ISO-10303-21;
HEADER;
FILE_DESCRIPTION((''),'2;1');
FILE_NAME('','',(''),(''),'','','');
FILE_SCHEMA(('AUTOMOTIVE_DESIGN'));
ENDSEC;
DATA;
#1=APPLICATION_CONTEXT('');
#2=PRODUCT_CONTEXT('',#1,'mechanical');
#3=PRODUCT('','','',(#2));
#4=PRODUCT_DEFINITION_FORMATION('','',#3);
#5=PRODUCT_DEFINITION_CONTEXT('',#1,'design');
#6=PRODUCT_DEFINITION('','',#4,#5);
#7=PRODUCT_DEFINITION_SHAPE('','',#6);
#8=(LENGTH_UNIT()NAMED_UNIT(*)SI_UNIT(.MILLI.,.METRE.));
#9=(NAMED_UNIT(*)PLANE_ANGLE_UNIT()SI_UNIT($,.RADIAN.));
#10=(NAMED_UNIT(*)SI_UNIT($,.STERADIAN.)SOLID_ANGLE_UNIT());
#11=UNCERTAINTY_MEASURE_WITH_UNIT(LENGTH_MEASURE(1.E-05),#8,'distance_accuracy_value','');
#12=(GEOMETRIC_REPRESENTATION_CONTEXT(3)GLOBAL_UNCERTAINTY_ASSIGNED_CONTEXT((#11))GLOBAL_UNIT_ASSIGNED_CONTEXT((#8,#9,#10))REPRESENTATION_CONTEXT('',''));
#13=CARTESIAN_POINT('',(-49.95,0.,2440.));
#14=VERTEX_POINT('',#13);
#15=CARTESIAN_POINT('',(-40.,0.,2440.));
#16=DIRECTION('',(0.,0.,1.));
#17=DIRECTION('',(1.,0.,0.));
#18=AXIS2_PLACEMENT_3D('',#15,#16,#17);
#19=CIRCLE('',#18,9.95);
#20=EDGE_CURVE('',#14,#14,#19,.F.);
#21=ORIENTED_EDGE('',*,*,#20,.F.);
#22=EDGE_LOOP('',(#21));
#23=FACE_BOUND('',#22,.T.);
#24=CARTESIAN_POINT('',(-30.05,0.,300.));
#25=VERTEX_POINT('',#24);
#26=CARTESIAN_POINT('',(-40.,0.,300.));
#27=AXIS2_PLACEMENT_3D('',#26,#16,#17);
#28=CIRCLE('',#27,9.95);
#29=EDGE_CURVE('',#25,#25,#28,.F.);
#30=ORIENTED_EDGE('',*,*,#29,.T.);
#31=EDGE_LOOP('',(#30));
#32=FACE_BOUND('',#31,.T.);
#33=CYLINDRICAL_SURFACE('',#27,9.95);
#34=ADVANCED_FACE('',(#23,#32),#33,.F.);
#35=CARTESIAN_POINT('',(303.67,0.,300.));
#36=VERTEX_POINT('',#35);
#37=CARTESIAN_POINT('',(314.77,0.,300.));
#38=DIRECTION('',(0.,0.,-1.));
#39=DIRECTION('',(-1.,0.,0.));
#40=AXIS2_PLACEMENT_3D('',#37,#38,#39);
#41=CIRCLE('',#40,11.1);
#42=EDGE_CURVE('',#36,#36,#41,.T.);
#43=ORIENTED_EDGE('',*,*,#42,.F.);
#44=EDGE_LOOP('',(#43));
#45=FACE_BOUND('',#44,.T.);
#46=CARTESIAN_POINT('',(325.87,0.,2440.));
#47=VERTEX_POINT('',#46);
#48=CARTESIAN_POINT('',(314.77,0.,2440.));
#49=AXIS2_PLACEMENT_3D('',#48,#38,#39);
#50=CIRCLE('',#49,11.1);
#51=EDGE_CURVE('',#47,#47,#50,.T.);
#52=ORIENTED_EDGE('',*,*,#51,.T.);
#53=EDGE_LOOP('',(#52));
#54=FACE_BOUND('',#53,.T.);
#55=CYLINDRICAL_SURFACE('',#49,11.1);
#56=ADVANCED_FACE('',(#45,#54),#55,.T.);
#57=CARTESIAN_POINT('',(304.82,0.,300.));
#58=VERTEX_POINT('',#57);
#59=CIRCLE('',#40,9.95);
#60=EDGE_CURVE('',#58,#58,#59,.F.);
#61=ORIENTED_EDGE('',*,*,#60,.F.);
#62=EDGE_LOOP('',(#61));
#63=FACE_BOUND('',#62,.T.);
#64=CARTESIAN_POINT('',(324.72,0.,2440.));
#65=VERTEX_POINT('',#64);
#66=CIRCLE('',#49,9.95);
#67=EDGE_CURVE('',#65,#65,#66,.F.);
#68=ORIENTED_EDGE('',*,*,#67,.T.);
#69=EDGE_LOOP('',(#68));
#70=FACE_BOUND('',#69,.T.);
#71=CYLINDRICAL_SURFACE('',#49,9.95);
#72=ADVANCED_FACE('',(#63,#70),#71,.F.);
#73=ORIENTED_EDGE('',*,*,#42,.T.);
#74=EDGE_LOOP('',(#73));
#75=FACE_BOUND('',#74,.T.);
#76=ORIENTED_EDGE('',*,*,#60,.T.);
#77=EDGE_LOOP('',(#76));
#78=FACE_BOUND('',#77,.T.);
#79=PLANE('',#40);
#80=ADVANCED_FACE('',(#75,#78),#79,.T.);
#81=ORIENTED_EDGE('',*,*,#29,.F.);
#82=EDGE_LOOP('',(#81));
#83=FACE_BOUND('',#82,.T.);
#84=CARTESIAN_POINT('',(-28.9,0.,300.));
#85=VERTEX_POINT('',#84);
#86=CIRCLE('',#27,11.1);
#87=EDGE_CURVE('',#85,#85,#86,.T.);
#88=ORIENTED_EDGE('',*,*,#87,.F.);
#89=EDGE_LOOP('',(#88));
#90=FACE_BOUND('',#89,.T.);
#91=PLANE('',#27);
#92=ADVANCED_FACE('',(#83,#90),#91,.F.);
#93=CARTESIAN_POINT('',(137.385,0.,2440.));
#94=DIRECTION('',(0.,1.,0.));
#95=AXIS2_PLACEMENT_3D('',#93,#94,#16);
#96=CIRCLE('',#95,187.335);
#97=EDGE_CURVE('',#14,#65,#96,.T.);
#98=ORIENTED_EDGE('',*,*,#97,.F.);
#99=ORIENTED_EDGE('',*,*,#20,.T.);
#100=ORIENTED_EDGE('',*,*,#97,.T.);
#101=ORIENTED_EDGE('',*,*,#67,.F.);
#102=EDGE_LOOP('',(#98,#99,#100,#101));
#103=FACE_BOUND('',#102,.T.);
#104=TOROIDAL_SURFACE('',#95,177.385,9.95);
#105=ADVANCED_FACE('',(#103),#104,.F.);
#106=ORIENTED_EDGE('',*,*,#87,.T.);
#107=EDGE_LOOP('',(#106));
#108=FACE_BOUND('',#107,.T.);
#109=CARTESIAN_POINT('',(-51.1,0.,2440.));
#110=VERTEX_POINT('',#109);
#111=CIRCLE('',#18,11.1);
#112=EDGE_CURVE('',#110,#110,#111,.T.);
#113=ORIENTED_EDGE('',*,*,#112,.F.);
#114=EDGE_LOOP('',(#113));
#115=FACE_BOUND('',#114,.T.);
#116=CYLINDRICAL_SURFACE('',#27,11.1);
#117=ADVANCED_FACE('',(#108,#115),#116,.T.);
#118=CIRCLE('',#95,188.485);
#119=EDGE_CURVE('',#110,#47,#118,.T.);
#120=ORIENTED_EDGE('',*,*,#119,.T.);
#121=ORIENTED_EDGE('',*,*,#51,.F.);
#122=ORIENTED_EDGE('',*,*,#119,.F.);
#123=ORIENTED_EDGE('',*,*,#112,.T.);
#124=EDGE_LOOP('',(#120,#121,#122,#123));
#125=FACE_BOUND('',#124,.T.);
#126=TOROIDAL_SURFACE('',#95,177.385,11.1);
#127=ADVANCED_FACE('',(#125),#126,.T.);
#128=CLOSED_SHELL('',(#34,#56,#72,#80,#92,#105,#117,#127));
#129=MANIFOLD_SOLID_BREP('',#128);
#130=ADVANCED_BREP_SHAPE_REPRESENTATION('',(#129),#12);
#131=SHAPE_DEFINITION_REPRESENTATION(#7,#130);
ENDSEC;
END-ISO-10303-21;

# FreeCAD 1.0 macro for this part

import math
import FreeCAD as App
import Part
import Sketcher

V = App.Vector
Q = App.Units.Quantity

doc = App.newDocument("Part")
params = doc.addObject("Spreadsheet::Sheet", "Params")
for row, (alias, value) in enumerate([
    ("sketch1_diameter", "22.2 mm"),
    ("sketch1_diameter2", "19.9 mm"),
    ("sketch2_height", "2140 mm"),
], start=1):
    params.set(f"A{row}", alias)
    params.set(f"B{row}", "=" + value)
    params.setAlias(f"B{row}", alias)

body = doc.addObject("PartDesign::Body", "Body")

sketch1 = doc.addObject("Sketcher::SketchObject", "Sketch")
body.addObject(sketch1)
sketch1.AttachmentSupport = (doc.XY_Plane, [""])
sketch1.MapMode = "FlatFace"
sketch1.AttachmentOffset = App.Placement(V(0, 0, 300), App.Rotation())
sketch1.addGeometry([
    Part.Circle(V(314.77, 0, 0), V(0, 0, 1), 11.1),
    Part.Circle(V(314.77, 0, 0), V(0, 0, 1), 9.95),
], False)
sketch1.addConstraint([
    Sketcher.Constraint("Coincident", 1, 3, 0, 3),
    Sketcher.Constraint("PointOnObject", 0, 3, -1),
    Sketcher.Constraint("Diameter", 0, Q("22.2 mm")),
    Sketcher.Constraint("Diameter", 1, Q("19.9 mm")),
    Sketcher.Constraint("DistanceX", -1, 1, 0, 3, Q("314.77 mm")),
])
sketch1.setExpression("Constraints[2]", "Params.sketch1_diameter")
sketch1.setExpression("Constraints[3]", "Params.sketch1_diameter2")

sketch2 = doc.addObject("Sketcher::SketchObject", "Sketch001")
body.addObject(sketch2)
sketch2.AttachmentSupport = (doc.XZ_Plane, [""])
sketch2.MapMode = "FlatFace"
sketch2.addGeometry([
    Part.LineSegment(V(314.77, 300, 0), V(314.77, 2440, 0)),
    Part.ArcOfCircle(Part.Circle(V(137.385, 2440, 0), V(0, 0, 1), 177.385), math.radians(0), math.radians(180)),
    Part.LineSegment(V(-40, 2440, 0), V(-40, 300, 0)),
], False)
sketch2.addConstraint([
    Sketcher.Constraint("Tangent", 0, 2, 1, 1),
    Sketcher.Constraint("Tangent", 1, 2, 2, 1),
    Sketcher.Constraint("Vertical", 0),
    Sketcher.Constraint("Vertical", 2),
    Sketcher.Constraint("Horizontal", 0, 1, 2, 2),
    Sketcher.Constraint("DistanceY", 0, 1, 0, 2, Q("2140 mm")),
    Sketcher.Constraint("DistanceY", -1, 1, 1, 3, Q("2440 mm")),
    Sketcher.Constraint("DistanceX", 1, 2, -1, 1, Q("40 mm")),
    Sketcher.Constraint("Radius", 1, Q("177.385 mm")),
])
sketch2.setExpression("Constraints[5]", "Params.sketch2_height")
doc.recompute()

additivepipe = doc.addObject("PartDesign::AdditivePipe", "AdditivePipe")
body.addObject(additivepipe)
additivepipe.Profile = sketch1
additivepipe.Spine = (sketch2, ["Edge1", "Edge2", "Edge3"])

doc.recompute()
